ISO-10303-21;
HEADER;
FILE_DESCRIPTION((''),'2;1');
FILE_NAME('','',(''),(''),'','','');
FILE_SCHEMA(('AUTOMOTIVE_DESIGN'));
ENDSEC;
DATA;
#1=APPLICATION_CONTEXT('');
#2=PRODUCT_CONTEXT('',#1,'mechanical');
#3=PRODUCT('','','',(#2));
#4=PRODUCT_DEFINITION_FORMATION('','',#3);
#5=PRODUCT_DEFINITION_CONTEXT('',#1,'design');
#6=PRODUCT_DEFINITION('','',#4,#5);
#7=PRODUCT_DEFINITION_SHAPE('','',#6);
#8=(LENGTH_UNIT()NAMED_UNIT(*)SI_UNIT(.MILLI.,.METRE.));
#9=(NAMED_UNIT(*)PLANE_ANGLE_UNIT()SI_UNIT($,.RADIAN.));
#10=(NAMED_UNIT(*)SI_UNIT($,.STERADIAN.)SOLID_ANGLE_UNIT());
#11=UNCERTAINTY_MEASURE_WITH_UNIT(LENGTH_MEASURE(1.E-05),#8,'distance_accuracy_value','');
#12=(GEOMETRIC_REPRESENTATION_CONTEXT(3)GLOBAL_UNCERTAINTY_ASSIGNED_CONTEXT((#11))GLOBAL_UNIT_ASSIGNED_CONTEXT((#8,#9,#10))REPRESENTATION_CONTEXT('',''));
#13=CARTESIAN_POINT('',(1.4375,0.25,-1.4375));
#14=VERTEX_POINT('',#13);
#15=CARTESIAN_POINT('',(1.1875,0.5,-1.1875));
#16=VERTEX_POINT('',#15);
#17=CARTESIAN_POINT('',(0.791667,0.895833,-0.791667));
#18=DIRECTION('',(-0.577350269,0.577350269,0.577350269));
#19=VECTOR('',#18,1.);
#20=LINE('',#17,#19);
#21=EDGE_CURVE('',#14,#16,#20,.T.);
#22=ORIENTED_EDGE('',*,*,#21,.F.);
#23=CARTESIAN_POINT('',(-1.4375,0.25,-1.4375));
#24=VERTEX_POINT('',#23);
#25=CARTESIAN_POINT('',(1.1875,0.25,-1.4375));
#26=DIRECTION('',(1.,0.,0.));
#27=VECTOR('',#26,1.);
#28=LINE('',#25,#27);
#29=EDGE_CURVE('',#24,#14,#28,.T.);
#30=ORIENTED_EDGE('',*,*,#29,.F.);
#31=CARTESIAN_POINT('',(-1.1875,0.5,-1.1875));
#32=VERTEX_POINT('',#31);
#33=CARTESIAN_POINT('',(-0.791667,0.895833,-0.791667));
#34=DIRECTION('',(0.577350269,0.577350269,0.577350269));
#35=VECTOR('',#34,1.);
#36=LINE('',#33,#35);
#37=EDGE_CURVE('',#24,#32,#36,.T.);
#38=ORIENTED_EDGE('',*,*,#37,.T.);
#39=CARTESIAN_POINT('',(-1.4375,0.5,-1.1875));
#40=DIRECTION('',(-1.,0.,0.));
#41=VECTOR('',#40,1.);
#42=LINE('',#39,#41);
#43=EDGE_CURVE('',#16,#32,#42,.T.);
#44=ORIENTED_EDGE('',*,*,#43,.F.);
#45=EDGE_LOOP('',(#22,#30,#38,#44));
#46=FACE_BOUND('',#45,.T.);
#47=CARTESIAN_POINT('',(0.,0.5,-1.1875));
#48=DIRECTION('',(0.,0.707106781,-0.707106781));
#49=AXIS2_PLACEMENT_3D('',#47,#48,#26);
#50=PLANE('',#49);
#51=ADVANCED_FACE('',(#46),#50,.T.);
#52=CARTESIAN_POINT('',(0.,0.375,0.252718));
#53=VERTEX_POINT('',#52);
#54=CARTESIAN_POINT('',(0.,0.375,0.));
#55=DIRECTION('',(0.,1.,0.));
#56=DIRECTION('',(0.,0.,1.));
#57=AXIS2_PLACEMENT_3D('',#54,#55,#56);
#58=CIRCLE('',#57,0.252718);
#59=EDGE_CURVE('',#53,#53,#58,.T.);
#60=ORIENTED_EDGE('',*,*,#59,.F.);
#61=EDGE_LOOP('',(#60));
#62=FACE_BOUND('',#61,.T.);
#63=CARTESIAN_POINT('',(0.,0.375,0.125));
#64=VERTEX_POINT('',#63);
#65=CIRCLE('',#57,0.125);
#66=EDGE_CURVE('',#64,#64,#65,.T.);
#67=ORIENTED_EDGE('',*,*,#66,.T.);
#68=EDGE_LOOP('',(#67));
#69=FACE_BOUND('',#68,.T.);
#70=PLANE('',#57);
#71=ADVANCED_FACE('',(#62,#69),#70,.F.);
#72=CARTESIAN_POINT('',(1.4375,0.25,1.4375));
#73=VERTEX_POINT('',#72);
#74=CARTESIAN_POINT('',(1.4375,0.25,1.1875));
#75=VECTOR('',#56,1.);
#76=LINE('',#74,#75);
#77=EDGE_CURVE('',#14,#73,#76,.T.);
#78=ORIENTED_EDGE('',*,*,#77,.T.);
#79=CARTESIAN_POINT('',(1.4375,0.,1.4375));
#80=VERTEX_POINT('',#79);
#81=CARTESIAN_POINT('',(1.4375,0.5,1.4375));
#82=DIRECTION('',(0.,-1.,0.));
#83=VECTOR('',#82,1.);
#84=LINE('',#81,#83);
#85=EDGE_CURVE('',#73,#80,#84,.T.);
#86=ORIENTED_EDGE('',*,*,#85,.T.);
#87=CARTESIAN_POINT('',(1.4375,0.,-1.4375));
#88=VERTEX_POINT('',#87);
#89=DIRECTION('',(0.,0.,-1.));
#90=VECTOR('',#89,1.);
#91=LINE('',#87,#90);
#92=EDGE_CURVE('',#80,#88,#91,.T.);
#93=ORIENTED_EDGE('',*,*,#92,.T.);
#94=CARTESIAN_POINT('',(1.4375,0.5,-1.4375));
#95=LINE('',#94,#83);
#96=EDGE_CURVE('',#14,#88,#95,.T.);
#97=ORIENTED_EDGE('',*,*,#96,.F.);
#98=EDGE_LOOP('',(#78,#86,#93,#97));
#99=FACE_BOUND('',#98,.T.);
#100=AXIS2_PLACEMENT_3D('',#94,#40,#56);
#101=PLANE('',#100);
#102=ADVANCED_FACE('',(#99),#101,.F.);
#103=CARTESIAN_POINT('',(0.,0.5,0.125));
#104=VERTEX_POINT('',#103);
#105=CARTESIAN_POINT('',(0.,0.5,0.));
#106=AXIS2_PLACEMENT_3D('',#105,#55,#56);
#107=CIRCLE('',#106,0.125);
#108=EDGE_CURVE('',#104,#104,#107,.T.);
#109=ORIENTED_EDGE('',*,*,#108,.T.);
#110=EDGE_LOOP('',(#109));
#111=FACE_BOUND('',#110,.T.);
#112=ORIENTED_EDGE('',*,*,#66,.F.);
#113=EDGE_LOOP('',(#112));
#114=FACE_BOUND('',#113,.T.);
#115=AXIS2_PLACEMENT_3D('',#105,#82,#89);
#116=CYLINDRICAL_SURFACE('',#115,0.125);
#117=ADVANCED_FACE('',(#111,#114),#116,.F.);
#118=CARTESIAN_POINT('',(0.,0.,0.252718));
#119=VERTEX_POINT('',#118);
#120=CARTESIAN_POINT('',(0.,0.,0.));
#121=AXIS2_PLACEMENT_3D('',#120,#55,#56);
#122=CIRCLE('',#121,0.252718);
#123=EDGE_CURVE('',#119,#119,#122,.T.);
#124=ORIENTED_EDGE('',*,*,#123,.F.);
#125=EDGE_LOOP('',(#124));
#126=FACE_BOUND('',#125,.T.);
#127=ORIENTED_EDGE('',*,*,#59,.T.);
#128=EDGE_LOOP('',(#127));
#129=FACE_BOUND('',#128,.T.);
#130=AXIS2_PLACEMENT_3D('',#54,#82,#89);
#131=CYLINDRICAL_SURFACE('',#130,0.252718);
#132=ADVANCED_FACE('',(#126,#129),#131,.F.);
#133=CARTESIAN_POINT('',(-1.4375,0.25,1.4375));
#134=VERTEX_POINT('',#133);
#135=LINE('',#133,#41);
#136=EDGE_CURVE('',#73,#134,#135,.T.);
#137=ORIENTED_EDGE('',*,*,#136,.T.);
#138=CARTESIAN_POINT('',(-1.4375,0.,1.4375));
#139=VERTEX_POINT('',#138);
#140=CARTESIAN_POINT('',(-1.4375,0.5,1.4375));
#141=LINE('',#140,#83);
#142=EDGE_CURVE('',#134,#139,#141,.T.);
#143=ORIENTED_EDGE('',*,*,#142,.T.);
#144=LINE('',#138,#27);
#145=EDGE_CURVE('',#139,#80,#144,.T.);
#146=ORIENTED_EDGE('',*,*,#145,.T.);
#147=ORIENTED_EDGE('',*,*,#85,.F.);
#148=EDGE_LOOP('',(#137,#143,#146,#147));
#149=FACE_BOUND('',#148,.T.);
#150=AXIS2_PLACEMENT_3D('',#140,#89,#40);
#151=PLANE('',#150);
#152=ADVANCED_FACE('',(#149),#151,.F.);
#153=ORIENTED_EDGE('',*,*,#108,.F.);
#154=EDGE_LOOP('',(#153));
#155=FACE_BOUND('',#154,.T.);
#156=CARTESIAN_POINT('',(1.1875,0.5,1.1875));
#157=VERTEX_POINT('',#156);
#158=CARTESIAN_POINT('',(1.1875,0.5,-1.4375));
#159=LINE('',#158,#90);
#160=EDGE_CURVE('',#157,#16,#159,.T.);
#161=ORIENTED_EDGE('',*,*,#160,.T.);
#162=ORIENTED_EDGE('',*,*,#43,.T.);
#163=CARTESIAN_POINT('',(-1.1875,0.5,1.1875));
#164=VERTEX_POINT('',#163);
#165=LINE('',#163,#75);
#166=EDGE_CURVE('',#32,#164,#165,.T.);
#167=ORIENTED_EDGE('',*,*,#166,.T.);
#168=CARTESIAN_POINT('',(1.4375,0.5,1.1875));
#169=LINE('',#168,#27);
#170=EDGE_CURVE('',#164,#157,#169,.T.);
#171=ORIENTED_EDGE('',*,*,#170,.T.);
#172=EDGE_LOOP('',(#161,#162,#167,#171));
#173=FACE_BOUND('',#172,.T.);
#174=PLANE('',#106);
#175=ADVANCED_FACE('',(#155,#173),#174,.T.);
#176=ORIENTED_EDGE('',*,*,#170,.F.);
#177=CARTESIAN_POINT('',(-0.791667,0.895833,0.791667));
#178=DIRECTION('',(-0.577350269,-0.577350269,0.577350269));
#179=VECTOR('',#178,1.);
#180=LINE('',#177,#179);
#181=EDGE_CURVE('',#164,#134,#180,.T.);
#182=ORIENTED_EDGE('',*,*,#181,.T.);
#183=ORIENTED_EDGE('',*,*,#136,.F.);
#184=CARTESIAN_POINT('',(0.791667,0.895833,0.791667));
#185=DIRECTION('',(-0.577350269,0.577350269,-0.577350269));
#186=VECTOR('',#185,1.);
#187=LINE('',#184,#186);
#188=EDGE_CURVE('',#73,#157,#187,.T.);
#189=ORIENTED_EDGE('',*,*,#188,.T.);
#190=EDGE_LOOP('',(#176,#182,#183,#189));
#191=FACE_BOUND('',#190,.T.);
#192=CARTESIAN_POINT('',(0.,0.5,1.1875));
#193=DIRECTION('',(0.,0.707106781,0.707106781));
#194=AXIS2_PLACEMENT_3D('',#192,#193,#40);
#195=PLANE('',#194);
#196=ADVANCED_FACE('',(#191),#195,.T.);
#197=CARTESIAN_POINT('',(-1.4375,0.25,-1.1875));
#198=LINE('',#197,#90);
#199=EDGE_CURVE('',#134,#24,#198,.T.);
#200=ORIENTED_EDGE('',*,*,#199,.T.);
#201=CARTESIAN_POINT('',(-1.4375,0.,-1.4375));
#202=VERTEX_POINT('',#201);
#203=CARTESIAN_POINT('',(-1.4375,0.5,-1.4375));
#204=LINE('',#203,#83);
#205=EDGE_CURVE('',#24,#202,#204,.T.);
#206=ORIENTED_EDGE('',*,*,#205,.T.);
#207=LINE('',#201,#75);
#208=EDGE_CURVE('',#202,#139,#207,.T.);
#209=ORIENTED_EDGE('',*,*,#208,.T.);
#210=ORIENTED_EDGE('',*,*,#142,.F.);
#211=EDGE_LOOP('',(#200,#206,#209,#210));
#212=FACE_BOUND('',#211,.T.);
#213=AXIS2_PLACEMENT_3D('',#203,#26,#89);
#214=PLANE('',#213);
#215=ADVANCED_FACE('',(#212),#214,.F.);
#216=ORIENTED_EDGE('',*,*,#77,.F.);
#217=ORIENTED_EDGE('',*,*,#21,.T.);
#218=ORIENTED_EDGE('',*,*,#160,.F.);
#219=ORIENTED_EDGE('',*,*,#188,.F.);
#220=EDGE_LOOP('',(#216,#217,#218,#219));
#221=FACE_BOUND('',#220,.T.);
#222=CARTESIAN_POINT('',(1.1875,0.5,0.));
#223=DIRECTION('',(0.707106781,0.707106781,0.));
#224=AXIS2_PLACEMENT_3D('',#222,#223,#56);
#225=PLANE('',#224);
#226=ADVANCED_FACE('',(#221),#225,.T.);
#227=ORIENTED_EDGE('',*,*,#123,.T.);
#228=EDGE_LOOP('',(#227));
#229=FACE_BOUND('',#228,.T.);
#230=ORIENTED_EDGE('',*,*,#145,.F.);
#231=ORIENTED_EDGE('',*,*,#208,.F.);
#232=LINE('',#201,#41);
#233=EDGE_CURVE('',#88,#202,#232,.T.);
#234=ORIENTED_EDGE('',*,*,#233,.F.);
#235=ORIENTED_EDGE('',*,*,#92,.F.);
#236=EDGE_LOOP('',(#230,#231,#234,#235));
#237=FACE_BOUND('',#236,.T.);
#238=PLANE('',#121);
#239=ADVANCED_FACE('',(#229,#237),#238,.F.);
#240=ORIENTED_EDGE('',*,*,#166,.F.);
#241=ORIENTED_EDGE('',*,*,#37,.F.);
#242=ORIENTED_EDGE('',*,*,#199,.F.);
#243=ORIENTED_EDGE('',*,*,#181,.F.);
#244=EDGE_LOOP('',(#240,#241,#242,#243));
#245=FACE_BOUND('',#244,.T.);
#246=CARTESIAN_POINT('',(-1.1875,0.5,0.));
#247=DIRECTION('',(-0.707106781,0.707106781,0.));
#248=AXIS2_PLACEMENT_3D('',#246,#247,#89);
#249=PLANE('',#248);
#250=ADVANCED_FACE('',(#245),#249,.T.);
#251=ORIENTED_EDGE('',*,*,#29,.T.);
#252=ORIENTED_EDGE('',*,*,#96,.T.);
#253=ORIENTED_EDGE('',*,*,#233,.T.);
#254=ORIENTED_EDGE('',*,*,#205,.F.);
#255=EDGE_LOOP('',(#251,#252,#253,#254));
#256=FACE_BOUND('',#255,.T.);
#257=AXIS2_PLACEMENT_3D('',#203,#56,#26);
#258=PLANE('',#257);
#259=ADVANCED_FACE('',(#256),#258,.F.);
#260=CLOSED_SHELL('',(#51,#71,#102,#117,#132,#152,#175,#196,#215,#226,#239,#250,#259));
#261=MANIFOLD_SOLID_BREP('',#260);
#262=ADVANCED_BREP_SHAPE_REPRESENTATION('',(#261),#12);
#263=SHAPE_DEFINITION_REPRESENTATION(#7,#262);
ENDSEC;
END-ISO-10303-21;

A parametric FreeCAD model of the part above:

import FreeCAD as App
import Part
import Sketcher
Q = App.Units.Quantity


def edges_at(feature, points):
    """Names of the edges that pass closest to the given points."""
    edges = feature.Shape.Edges
    near = lambda p: min(range(len(edges)), key=lambda i: edges[i].distToShape(Part.Vertex(*p))[0])
    return sorted({f"Edge{near(p) + 1}" for p in points})

doc = App.newDocument("Part")
body = doc.addObject("PartDesign::Body", "Body")

# Sketch on XZ plane
sketch1 = doc.addObject("Sketcher::SketchObject", "Sketch")
body.addObject(sketch1)
sketch1.AttachmentSupport = (doc.XZ_Plane, [""])
sketch1.MapMode = "FlatFace"
sketch1.addGeometry(Part.LineSegment(App.Vector(-1.4, -1.4, 0), App.Vector(-1.4, 1.4, 0)), False)
sketch1.addGeometry(Part.LineSegment(App.Vector(-1.4, 1.4, 0), App.Vector(1.4, 1.4, 0)), False)
sketch1.addGeometry(Part.LineSegment(App.Vector(1.4, 1.4, 0), App.Vector(1.4, -1.4, 0)), False)
sketch1.addGeometry(Part.LineSegment(App.Vector(1.4, -1.4, 0), App.Vector(-1.4, -1.4, 0)), False)
sketch1.addConstraint(Sketcher.Constraint("Coincident", 0, 2, 1, 1))
sketch1.addConstraint(Sketcher.Constraint("Coincident", 1, 2, 2, 1))
sketch1.addConstraint(Sketcher.Constraint("Coincident", 2, 2, 3, 1))
sketch1.addConstraint(Sketcher.Constraint("Coincident", 3, 2, 0, 1))
sketch1.addConstraint(Sketcher.Constraint("Vertical", 0))
sketch1.addConstraint(Sketcher.Constraint("Horizontal", 1))
sketch1.addConstraint(Sketcher.Constraint("Vertical", 2))
sketch1.addConstraint(Sketcher.Constraint("Horizontal", 3))
sketch1.addConstraint(Sketcher.Constraint("Symmetric", 0, 2, 2, 2, -1, 1))
sketch1.addConstraint(Sketcher.Constraint("Equal", 3, 0))
sketch1.addConstraint(Sketcher.Constraint("DistanceX", 1, 1, 1, 2, Q("2.875 mm")))
pad1 = doc.addObject("PartDesign::Pad", "Pad")
body.addObject(pad1)
pad1.Profile = sketch1
pad1.Length = 0.5
pad1.Reversed = True

# Sketch on XZ plane
sketch2 = doc.addObject("Sketcher::SketchObject", "Sketch001")
body.addObject(sketch2)
sketch2.AttachmentSupport = (doc.XZ_Plane, [""])
sketch2.MapMode = "FlatFace"
sketch2.addGeometry(Part.Circle(App.Vector(0, 0, 0), App.Vector(0, 0, 1), 0.25), False)
sketch2.addConstraint(Sketcher.Constraint("Coincident", 0, 3, -1, 1))
sketch2.addConstraint(Sketcher.Constraint("Diameter", 0, Q("0.505436 mm")))
pocket1 = doc.addObject("PartDesign::Pocket", "Pocket")
body.addObject(pocket1)
pocket1.Profile = sketch2
pocket1.Length = 0.375

# Sketch on XZ plane
sketch3 = doc.addObject("Sketcher::SketchObject", "Sketch002")
body.addObject(sketch3)
sketch3.AttachmentSupport = (doc.XZ_Plane, [""])
sketch3.MapMode = "FlatFace"
sketch3.AttachmentOffset = App.Placement(App.Vector(0, 0, -0.375), App.Rotation())
sketch3.addGeometry(Part.Circle(App.Vector(0, 0, 0), App.Vector(0, 0, 1), 0.12), False)
sketch3.addConstraint(Sketcher.Constraint("Coincident", 0, 3, -1, 1))
sketch3.addConstraint(Sketcher.Constraint("Diameter", 0, Q("0.25 mm")))
pocket2 = doc.addObject("PartDesign::Pocket", "Pocket001")
body.addObject(pocket2)
pocket2.Profile = sketch3
pocket2.Length = 0.125
doc.recompute()

chamfer = doc.addObject("PartDesign::Chamfer", "Chamfer")
body.addObject(chamfer)
chamfer.Base = (pocket2, edges_at(pocket2, [(0, 0.5, 1.438)]))
chamfer.Size = 0.25
doc.recompute()

chamfer2 = doc.addObject("PartDesign::Chamfer", "Chamfer001")
body.addObject(chamfer2)
chamfer2.Base = (chamfer, edges_at(chamfer, [(1.438, 0.5, -0.125)]))
chamfer2.Size = 0.25
doc.recompute()

chamfer3 = doc.addObject("PartDesign::Chamfer", "Chamfer002")
body.addObject(chamfer3)
chamfer3.Base = (chamfer2, edges_at(chamfer2, [(-0.125, 0.5, -1.438)]))
chamfer3.Size = 0.25
doc.recompute()

chamfer4 = doc.addObject("PartDesign::Chamfer", "Chamfer003")
body.addObject(chamfer4)
chamfer4.Base = (chamfer3, edges_at(chamfer3, [(-1.438, 0.5, 0)]))
chamfer4.Size = 0.25

doc.recompute()
